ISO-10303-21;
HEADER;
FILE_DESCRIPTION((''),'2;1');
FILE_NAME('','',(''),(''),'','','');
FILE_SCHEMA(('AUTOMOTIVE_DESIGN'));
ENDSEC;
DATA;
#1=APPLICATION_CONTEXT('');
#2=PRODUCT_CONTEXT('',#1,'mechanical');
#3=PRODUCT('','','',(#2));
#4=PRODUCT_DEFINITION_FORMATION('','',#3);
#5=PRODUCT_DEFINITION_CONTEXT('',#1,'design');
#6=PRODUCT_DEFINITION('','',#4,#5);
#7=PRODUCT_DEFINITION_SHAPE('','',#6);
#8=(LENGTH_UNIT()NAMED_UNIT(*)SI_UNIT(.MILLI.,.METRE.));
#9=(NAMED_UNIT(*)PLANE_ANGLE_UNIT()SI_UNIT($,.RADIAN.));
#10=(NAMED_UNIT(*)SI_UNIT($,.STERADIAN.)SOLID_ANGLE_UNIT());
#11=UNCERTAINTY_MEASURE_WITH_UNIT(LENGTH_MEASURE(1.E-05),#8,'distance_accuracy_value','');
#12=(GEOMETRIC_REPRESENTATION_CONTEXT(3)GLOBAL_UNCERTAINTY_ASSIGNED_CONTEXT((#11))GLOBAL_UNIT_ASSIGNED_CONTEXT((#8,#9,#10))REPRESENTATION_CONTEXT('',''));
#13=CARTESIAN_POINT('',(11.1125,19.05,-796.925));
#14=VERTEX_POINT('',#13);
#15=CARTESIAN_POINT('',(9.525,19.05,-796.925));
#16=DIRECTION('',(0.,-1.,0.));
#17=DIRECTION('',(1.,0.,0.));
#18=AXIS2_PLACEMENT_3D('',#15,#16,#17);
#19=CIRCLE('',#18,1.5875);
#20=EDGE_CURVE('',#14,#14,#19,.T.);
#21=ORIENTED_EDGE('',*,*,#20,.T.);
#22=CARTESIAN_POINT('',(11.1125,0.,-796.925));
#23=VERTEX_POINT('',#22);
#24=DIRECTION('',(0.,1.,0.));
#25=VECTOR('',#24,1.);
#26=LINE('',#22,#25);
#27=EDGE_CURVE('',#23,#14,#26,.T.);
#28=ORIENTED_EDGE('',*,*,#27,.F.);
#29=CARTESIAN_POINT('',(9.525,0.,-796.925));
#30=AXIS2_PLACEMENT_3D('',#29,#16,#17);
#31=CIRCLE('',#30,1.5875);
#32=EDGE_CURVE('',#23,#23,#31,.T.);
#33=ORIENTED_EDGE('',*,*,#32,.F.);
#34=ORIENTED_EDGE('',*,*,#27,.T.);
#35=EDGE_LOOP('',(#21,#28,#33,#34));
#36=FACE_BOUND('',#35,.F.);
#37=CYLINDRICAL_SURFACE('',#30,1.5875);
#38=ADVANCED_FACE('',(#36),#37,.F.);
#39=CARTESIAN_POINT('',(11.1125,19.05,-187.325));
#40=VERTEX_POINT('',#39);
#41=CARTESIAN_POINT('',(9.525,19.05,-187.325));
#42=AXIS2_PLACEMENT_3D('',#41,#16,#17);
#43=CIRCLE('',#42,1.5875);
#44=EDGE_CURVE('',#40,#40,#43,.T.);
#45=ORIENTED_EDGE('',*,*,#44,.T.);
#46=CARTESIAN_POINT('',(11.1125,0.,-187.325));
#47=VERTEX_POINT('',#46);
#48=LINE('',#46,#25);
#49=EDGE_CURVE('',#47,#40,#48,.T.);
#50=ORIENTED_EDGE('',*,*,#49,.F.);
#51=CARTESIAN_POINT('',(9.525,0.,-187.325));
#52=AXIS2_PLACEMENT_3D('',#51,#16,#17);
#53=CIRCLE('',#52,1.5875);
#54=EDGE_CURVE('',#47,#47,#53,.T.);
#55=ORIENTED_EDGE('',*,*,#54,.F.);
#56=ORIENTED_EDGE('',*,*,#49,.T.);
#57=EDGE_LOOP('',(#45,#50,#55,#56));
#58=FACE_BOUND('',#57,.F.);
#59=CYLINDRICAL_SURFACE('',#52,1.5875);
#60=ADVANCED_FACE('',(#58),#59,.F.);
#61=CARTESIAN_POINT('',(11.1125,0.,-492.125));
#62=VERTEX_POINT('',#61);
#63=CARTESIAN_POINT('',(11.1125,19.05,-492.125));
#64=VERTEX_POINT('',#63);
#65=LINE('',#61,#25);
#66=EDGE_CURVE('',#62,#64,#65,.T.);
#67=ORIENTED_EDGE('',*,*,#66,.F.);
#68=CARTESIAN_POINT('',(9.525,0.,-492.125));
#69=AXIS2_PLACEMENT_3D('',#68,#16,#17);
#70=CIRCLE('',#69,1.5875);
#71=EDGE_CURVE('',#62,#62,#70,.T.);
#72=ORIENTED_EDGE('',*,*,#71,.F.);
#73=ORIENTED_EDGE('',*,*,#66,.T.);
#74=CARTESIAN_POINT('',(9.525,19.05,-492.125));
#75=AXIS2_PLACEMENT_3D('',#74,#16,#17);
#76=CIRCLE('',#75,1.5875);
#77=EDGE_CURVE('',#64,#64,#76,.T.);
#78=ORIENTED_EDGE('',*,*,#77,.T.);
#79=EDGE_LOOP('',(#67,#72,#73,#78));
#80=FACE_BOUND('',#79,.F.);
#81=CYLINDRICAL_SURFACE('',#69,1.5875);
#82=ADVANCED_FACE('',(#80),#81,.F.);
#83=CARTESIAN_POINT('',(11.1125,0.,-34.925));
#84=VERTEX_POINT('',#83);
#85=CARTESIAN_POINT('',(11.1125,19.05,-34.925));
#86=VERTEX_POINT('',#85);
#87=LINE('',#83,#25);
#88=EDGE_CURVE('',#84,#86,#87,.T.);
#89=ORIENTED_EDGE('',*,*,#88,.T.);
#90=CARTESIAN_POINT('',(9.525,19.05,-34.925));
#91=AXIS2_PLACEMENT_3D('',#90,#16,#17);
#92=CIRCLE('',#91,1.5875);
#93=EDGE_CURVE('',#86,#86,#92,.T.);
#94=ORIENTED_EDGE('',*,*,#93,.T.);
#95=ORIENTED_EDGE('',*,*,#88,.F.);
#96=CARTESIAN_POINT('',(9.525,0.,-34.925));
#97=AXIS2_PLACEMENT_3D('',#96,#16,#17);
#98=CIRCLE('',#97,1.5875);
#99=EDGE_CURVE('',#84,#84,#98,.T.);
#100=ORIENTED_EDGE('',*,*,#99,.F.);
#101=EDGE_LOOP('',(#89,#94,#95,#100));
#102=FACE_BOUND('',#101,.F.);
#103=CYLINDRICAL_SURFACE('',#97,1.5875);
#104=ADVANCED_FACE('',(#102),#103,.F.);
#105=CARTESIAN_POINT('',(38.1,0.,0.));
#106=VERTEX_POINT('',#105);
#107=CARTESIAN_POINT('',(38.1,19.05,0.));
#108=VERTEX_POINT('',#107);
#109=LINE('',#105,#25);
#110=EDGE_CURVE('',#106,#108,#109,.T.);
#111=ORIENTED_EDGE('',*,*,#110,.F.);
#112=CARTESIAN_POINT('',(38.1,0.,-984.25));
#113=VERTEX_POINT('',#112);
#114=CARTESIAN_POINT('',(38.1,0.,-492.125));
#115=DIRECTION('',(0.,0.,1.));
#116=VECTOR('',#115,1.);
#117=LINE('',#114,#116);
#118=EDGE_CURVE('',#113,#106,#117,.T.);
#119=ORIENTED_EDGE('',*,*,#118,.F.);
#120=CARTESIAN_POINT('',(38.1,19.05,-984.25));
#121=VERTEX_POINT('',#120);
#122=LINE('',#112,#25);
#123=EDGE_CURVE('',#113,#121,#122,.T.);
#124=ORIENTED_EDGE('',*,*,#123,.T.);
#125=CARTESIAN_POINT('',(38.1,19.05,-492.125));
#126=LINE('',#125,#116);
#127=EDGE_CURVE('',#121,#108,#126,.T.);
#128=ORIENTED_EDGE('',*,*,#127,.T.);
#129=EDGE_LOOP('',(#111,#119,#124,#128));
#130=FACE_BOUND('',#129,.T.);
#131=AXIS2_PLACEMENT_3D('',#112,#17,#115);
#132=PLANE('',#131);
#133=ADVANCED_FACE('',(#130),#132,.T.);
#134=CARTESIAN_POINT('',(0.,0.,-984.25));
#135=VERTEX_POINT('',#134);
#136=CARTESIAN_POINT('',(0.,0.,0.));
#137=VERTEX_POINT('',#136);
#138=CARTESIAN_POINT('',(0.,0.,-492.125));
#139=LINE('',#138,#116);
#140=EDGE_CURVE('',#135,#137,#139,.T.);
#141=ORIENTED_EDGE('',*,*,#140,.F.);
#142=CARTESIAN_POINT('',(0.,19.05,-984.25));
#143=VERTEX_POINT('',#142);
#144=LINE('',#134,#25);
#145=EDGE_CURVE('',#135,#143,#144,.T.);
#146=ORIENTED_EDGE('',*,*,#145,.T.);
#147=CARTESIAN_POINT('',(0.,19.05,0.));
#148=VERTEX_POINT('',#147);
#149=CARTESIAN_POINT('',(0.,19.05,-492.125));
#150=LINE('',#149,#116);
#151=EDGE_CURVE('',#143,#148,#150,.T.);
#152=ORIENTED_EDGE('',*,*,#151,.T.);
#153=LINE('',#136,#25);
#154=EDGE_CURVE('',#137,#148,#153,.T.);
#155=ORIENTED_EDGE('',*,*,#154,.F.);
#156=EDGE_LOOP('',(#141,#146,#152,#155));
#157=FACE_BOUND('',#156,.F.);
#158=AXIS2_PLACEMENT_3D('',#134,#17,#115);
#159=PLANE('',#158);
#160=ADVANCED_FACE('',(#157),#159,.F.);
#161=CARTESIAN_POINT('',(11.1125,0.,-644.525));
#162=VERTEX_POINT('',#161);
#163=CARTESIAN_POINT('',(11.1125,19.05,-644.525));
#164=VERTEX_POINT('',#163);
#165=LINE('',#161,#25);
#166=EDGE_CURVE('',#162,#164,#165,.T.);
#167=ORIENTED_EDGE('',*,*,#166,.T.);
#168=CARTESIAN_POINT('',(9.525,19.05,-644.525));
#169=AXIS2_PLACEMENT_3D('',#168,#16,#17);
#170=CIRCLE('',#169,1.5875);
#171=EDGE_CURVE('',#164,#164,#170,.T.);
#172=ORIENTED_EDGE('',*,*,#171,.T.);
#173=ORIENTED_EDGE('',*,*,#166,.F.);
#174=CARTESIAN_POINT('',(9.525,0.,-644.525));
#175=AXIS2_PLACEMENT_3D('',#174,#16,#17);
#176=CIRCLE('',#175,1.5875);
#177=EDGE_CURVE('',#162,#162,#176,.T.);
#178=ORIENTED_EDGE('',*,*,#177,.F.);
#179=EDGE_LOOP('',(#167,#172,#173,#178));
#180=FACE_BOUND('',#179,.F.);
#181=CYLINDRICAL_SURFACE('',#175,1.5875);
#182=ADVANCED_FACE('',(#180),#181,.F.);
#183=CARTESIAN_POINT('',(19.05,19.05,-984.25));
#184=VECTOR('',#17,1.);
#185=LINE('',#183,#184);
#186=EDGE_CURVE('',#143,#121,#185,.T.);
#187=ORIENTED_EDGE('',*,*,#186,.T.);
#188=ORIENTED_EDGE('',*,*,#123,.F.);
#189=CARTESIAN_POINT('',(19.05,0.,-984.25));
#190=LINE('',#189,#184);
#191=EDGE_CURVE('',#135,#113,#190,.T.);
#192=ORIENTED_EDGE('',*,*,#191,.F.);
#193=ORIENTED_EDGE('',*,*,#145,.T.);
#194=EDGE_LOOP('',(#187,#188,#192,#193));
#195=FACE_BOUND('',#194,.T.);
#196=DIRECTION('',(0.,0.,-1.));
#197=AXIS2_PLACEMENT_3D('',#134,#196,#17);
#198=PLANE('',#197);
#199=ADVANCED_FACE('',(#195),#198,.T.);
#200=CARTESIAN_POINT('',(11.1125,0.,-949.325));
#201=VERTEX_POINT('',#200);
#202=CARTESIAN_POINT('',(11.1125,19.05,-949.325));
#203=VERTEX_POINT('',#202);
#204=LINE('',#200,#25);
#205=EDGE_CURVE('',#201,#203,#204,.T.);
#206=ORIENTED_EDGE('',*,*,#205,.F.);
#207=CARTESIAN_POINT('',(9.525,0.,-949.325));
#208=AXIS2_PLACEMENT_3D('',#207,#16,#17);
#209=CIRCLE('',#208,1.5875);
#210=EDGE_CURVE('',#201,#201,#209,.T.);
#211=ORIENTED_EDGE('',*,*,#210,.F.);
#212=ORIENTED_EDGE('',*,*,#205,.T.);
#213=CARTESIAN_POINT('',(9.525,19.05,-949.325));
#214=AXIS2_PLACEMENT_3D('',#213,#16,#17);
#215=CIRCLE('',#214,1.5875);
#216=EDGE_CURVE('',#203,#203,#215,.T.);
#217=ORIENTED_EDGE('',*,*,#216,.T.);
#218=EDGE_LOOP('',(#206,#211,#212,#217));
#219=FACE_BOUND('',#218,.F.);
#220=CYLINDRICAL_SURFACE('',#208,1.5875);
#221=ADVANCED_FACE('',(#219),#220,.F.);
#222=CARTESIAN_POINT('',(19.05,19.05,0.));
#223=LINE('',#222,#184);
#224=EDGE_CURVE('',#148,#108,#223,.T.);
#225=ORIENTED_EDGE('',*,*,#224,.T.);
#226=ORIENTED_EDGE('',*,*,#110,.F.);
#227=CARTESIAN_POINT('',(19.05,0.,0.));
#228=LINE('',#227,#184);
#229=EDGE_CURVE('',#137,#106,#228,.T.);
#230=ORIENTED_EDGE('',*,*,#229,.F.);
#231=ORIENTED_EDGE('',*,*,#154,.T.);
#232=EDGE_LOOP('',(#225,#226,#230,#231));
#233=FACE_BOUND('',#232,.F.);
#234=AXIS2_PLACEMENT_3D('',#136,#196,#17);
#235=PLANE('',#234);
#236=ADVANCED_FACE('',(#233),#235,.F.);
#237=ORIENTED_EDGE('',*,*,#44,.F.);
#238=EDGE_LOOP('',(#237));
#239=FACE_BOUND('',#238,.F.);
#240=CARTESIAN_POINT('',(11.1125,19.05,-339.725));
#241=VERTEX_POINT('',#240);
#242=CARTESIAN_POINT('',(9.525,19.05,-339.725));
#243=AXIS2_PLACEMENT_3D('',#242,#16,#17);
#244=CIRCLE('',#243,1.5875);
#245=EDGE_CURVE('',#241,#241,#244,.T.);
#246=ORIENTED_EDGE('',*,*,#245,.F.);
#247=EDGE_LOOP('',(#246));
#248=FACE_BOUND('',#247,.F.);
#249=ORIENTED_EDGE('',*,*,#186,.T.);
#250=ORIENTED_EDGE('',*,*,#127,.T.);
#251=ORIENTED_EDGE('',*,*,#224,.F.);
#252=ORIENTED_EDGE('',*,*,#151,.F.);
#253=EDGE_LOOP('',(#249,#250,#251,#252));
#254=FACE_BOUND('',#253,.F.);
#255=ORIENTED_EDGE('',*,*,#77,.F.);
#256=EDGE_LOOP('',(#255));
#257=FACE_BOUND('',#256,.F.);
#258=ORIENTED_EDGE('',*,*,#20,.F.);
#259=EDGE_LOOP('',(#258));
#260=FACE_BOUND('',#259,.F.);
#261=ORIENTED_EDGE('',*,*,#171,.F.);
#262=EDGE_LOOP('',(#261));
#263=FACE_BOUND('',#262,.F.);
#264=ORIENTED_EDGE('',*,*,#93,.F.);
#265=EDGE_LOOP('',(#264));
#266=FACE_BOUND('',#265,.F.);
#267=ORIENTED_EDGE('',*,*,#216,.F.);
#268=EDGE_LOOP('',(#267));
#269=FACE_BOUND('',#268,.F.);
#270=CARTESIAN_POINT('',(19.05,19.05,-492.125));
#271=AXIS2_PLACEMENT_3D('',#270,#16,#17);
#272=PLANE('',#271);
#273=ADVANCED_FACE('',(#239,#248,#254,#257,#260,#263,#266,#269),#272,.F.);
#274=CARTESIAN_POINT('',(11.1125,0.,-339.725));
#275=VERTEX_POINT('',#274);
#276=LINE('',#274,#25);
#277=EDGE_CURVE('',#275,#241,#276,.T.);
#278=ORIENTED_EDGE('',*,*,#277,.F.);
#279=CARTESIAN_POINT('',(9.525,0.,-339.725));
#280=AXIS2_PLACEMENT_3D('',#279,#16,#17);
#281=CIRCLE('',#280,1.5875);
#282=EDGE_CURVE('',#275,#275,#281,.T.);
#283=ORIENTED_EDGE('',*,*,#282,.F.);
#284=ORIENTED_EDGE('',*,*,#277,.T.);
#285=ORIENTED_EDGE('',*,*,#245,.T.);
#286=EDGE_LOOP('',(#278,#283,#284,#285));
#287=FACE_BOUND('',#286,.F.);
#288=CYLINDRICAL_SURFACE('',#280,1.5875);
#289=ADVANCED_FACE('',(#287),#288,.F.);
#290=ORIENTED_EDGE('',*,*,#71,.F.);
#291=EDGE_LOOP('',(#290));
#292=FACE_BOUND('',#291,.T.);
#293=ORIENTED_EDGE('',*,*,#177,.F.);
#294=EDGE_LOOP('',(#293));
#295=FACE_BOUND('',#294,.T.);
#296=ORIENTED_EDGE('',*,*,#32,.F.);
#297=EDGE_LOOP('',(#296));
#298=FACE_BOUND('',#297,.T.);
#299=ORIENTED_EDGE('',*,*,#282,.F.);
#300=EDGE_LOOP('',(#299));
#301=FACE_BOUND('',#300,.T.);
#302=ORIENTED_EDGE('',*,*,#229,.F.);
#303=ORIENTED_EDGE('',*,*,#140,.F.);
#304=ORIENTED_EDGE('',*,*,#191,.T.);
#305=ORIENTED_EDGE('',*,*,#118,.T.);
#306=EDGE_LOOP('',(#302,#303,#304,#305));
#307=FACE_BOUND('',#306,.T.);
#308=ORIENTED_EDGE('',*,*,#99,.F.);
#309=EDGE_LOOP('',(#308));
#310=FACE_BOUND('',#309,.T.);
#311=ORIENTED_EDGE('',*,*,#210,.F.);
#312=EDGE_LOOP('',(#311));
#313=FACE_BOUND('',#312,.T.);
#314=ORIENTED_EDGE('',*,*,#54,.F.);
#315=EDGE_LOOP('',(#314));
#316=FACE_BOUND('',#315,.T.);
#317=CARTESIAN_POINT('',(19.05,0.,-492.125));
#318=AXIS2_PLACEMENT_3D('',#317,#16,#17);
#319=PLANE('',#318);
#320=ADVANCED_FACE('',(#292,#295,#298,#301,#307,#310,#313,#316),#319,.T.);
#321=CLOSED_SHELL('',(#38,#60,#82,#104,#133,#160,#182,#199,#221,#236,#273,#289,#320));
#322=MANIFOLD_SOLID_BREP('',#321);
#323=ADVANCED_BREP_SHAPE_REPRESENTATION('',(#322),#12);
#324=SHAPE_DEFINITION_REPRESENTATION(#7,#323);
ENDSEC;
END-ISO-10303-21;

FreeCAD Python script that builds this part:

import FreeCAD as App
import Part
import Sketcher
from FreeCAD import Vector
Q = App.Units.Quantity

doc = App.newDocument("Part")
body = doc.addObject("PartDesign::Body", "Body")

# Sketch on XZ plane
sketch1 = body.newObject("Sketcher::SketchObject", "Sketch")
sketch1.AttachmentSupport = (doc.getObject("XZ_Plane"), [""])
sketch1.MapMode = "FlatFace"
sketch1.addGeometry(Part.LineSegment(Vector(0, 0, 0), Vector(0, -984, 0)), False)
sketch1.addGeometry(Part.LineSegment(Vector(0, -984, 0), Vector(38, -984, 0)), False)
sketch1.addGeometry(Part.LineSegment(Vector(38, -984, 0), Vector(38, 0, 0)), False)
sketch1.addGeometry(Part.LineSegment(Vector(38, 0, 0), Vector(0, 0, 0)), False)
sketch1.addConstraint(Sketcher.Constraint("Coincident", 0, 2, 1, 1))
sketch1.addConstraint(Sketcher.Constraint("Coincident", 1, 2, 2, 1))
sketch1.addConstraint(Sketcher.Constraint("Coincident", 2, 2, 3, 1))
sketch1.addConstraint(Sketcher.Constraint("Coincident", 3, 2, 0, 1))
sketch1.addConstraint(Sketcher.Constraint("Vertical", 0))
sketch1.addConstraint(Sketcher.Constraint("Horizontal", 1))
sketch1.addConstraint(Sketcher.Constraint("Vertical", 2))
sketch1.addConstraint(Sketcher.Constraint("Horizontal", 3))
sketch1.addConstraint(Sketcher.Constraint("Coincident", 3, 2, -1, 1))
sketch1.addConstraint(Sketcher.Constraint("DistanceX", 1, 1, 1, 2, Q("1.5 in")))
sketch1.addConstraint(Sketcher.Constraint("DistanceY", 0, 2, 0, 1, Q("38.75 in")))
pad1 = body.newObject("PartDesign::Pad", "Pad")
pad1.Profile = sketch1
pad1.Length = Q("0.75 in")
pad1.Reversed = True

# Sketch on XZ plane
sketch2 = body.newObject("Sketcher::SketchObject", "Sketch001")
sketch2.AttachmentSupport = (doc.getObject("XZ_Plane"), [""])
sketch2.MapMode = "FlatFace"
sketch2.addGeometry(Part.Circle(Vector(9.5, -34.9, 0), Vector(0, 0, 1), 1.6), False)
sketch2.addGeometry(Part.Circle(Vector(9.5, -187.3, 0), Vector(0, 0, 1), 1.6), False)
sketch2.addGeometry(Part.Circle(Vector(9.5, -339.7, 0), Vector(0, 0, 1), 1.6), False)
sketch2.addGeometry(Part.Circle(Vector(9.5, -492.1, 0), Vector(0, 0, 1), 1.6), False)
sketch2.addGeometry(Part.Circle(Vector(9.5, -644.5, 0), Vector(0, 0, 1), 1.6), False)
sketch2.addGeometry(Part.Circle(Vector(9.5, -796.9, 0), Vector(0, 0, 1), 1.6), False)
sketch2.addGeometry(Part.Circle(Vector(9.5, -949.3, 0), Vector(0, 0, 1), 1.6), False)
sketch2.addConstraint(Sketcher.Constraint("Equal", 0, 1))
sketch2.addConstraint(Sketcher.Constraint("Equal", 1, 2))
sketch2.addConstraint(Sketcher.Constraint("Equal", 2, 3))
sketch2.addConstraint(Sketcher.Constraint("Equal", 3, 4))
sketch2.addConstraint(Sketcher.Constraint("Equal", 4, 5))
sketch2.addConstraint(Sketcher.Constraint("Equal", 5, 6))
sketch2.addConstraint(Sketcher.Constraint("Vertical", 0, 3, 1, 3))
sketch2.addConstraint(Sketcher.Constraint("Vertical", 1, 3, 2, 3))
sketch2.addConstraint(Sketcher.Constraint("Vertical", 2, 3, 3, 3))
sketch2.addConstraint(Sketcher.Constraint("Vertical", 3, 3, 4, 3))
sketch2.addConstraint(Sketcher.Constraint("Vertical", 4, 3, 5, 3))
sketch2.addConstraint(Sketcher.Constraint("Vertical", 5, 3, 6, 3))
sketch2.addConstraint(Sketcher.Constraint("Diameter", 0, Q("0.125 in")))
sketch2.addConstraint(Sketcher.Constraint("DistanceY", 1, 3, 0, 3, Q("6 in")))
sketch2.addConstraint(Sketcher.Constraint("DistanceY", 2, 3, 1, 3, Q("6 in")))
sketch2.addConstraint(Sketcher.Constraint("DistanceY", 3, 3, 2, 3, Q("6 in")))
sketch2.addConstraint(Sketcher.Constraint("DistanceY", 4, 3, 3, 3, Q("6 in")))
sketch2.addConstraint(Sketcher.Constraint("DistanceY", 5, 3, 4, 3, Q("6 in")))
sketch2.addConstraint(Sketcher.Constraint("DistanceY", 6, 3, 5, 3, Q("6 in")))
sketch2.addConstraint(Sketcher.Constraint("DistanceX", -1, 1, 0, 3, Q("0.375 in")))
sketch2.addConstraint(Sketcher.Constraint("DistanceY", 0, 3, -1, 1, Q("1.375 in")))
pocket1 = body.newObject("PartDesign::Pocket", "Pocket")
pocket1.Profile = sketch2
pocket1.Type = "ThroughAll"

doc.recompute()
